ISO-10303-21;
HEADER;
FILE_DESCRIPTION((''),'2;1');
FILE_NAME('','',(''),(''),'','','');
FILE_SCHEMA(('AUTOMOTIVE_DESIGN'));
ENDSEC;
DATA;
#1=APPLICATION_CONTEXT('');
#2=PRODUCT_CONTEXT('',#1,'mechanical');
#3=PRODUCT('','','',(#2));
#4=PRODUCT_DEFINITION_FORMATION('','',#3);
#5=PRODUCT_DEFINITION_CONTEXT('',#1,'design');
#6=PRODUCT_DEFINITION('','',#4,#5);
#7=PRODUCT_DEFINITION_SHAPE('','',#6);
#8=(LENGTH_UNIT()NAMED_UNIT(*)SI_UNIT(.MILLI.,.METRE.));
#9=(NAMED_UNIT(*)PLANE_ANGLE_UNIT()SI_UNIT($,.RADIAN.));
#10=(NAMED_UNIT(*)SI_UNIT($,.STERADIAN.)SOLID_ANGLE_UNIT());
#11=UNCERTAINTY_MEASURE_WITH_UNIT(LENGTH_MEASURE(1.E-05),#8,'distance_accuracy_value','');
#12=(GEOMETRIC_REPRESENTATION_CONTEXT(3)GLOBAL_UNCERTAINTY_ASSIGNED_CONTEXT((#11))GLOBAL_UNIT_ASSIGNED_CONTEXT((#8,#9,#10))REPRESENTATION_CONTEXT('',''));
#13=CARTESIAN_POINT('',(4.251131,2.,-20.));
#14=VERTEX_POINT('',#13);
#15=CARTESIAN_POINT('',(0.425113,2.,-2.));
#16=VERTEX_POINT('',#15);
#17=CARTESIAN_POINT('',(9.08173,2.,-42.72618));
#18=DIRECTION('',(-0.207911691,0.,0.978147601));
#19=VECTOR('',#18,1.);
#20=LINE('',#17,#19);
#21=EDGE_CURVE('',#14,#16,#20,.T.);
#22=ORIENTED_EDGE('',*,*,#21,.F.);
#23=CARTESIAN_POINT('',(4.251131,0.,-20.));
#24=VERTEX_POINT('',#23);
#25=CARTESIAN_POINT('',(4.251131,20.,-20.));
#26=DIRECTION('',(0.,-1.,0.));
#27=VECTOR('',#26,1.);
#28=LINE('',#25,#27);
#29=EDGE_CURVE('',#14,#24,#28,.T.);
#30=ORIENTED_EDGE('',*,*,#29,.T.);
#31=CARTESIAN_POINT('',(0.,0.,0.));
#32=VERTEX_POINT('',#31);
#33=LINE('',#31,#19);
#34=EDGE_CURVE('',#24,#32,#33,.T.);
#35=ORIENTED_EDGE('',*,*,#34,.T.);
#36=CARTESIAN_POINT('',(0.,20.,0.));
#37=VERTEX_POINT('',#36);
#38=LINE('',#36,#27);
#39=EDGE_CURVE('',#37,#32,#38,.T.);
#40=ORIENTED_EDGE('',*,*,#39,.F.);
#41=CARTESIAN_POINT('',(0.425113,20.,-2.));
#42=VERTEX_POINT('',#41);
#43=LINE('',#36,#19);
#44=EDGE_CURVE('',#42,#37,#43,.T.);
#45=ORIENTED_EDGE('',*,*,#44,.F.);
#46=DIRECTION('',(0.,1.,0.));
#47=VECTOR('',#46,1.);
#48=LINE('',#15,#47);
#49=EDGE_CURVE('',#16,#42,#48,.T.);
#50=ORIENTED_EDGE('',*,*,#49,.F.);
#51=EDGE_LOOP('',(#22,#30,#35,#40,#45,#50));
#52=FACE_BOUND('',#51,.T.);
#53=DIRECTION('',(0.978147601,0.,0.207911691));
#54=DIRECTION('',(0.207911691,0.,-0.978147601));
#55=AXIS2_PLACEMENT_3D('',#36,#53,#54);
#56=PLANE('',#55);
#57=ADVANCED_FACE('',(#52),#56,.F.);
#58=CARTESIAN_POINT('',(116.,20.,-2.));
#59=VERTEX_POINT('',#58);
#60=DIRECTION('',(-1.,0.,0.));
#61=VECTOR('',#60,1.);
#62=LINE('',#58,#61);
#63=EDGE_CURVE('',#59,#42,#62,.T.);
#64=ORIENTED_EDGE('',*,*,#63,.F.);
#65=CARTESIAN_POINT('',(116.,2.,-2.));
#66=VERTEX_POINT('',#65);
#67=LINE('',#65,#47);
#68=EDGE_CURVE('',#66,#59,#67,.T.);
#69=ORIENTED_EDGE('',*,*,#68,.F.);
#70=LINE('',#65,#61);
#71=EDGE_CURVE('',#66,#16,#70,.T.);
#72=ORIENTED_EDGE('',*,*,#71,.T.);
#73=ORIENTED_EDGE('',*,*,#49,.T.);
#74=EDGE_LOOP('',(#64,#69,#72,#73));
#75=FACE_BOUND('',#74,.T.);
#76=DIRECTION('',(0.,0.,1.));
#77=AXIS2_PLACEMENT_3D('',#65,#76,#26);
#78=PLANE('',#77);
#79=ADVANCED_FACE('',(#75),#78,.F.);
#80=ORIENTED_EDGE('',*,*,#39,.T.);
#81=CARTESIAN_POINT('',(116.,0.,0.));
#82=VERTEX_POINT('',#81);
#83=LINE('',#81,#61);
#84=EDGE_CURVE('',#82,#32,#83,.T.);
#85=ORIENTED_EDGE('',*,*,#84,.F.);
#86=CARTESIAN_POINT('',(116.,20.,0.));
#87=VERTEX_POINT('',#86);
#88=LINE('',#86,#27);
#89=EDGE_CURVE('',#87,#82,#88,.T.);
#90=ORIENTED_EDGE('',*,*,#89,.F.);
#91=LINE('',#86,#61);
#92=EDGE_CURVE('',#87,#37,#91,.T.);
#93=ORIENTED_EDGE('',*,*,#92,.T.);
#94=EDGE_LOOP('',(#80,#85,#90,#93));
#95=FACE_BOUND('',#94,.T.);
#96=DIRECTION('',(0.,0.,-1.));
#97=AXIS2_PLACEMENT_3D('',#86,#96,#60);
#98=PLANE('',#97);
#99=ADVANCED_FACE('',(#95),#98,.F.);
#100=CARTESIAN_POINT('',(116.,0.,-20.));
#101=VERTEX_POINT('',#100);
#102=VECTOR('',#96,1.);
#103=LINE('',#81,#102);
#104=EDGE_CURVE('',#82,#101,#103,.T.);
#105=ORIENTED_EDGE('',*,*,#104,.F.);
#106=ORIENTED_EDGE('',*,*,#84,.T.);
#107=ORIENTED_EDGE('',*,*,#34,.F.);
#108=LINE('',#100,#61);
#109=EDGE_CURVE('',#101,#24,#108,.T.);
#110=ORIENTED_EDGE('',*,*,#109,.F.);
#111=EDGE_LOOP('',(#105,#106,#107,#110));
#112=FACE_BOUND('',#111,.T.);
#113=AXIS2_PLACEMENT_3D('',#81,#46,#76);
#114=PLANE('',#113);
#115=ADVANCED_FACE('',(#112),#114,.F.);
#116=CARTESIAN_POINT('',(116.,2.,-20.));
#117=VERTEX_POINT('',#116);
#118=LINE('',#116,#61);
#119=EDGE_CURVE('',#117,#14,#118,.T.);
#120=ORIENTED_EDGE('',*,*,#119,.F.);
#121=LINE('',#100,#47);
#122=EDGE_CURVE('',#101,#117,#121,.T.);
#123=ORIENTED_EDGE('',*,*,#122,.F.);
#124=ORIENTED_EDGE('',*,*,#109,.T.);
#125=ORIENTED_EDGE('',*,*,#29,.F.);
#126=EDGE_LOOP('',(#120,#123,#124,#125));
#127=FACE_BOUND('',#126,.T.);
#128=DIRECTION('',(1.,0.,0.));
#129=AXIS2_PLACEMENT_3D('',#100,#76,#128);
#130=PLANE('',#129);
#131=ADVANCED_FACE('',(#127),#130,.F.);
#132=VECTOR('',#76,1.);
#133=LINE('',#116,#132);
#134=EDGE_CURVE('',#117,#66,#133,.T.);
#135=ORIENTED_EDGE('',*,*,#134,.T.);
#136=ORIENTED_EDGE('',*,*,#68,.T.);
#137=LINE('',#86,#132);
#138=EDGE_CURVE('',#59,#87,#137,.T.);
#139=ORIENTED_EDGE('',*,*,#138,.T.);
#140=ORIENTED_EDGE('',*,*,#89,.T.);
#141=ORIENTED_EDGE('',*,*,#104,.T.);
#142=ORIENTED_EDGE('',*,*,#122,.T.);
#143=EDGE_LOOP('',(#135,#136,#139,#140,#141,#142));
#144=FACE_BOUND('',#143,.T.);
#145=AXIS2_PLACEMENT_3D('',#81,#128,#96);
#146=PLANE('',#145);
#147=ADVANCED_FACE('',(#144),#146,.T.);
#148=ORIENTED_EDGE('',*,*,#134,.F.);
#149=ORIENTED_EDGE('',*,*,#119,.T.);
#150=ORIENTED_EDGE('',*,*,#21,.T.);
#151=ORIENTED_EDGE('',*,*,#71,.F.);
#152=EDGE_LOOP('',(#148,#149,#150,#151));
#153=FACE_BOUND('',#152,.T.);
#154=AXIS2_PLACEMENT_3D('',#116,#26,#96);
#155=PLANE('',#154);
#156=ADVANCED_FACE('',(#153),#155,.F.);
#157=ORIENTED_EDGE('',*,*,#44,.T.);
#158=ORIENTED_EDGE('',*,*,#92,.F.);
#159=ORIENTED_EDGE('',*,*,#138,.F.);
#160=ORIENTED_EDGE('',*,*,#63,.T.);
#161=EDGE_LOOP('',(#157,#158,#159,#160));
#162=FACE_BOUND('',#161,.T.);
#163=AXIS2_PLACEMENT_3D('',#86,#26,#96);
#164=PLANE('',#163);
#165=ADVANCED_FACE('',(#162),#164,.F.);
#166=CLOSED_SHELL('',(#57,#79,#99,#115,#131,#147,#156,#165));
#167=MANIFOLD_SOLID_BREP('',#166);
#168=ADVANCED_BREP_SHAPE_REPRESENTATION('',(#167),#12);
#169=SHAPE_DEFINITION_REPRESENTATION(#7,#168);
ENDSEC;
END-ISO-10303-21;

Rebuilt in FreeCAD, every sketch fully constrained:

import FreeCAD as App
import Part
import Sketcher

V = App.Vector
Q = App.Units.Quantity

doc = App.newDocument("Part")
body = doc.addObject("PartDesign::Body", "Body")

# Sketch on YZ plane
sketch1 = body.newObject("Sketcher::SketchObject", "Sketch")
sketch1.AttachmentSupport = (doc.getObject("YZ_Plane"), [""])
sketch1.MapMode = "FlatFace"
sketch1.addGeometry([
    Part.LineSegment(V(20, 0, 0), V(0, 0, 0)),  # 0
    Part.LineSegment(V(0, 0, 0), V(0, -20, 0)),  # 1
    Part.LineSegment(V(0, -20, 0), V(2, -20, 0)),  # 2
    Part.LineSegment(V(2, -20, 0), V(2, -2, 0)),  # 3
    Part.LineSegment(V(2, -2, 0), V(20, -2, 0)),  # 4
    Part.LineSegment(V(20, -2, 0), V(20, 0, 0)),  # 5
], False)
sketch1.addConstraint([
    Sketcher.Constraint("Coincident", 0, 2, 1, 1),
    Sketcher.Constraint("Coincident", 1, 2, 2, 1),
    Sketcher.Constraint("Coincident", 2, 2, 3, 1),
    Sketcher.Constraint("Coincident", 3, 2, 4, 1),
    Sketcher.Constraint("Coincident", 4, 2, 5, 1),
    Sketcher.Constraint("Coincident", 5, 2, 0, 1),
    Sketcher.Constraint("Horizontal", 0),
    Sketcher.Constraint("Vertical", 1),
    Sketcher.Constraint("Horizontal", 2),
    Sketcher.Constraint("Vertical", 3),
    Sketcher.Constraint("Horizontal", 4),
    Sketcher.Constraint("Vertical", 5),
    Sketcher.Constraint("Coincident", 0, 2, -1, 1),
    Sketcher.Constraint("Equal", 0, 1),
    Sketcher.Constraint("Equal", 4, 3),
    Sketcher.Constraint("DistanceX", 0, 2, 0, 1, Q("20 mm")),
    Sketcher.Constraint("DistanceX", 2, 1, 2, 2, Q("2 mm")),
])
pad1 = body.newObject("PartDesign::Pad", "Pad")
pad1.Profile = sketch1
pad1.Length = 116

# Sketch on XZ plane
sketch2 = body.newObject("Sketcher::SketchObject", "Sketch001")
sketch2.AttachmentSupport = (doc.getObject("XZ_Plane"), [""])
sketch2.MapMode = "FlatFace"
sketch2.addGeometry([
    Part.LineSegment(V(4.3, -20, 0), V(0, 0, 0)),
    Part.LineSegment(V(0, 0, 0), V(0, -20, 0)),
    Part.LineSegment(V(0, -20, 0), V(4.3, -20, 0)),
], False)
sketch2.addConstraint([
    Sketcher.Constraint("Coincident", 0, 2, 1, 1),
    Sketcher.Constraint("Coincident", 1, 2, 2, 1),
    Sketcher.Constraint("Coincident", 2, 2, 0, 1),
    Sketcher.Constraint("Vertical", 1),
    Sketcher.Constraint("Horizontal", 2),
    Sketcher.Constraint("Coincident", 0, 2, -1, 1),
    Sketcher.Constraint("DistanceY", 1, 2, 1, 1, Q("20 mm")),
    Sketcher.Constraint("Angle", 0, Q("102 deg")),
])
pocket1 = body.newObject("PartDesign::Pocket", "Pocket")
pocket1.Profile = sketch2
pocket1.Type = "ThroughAll"

doc.recompute()
